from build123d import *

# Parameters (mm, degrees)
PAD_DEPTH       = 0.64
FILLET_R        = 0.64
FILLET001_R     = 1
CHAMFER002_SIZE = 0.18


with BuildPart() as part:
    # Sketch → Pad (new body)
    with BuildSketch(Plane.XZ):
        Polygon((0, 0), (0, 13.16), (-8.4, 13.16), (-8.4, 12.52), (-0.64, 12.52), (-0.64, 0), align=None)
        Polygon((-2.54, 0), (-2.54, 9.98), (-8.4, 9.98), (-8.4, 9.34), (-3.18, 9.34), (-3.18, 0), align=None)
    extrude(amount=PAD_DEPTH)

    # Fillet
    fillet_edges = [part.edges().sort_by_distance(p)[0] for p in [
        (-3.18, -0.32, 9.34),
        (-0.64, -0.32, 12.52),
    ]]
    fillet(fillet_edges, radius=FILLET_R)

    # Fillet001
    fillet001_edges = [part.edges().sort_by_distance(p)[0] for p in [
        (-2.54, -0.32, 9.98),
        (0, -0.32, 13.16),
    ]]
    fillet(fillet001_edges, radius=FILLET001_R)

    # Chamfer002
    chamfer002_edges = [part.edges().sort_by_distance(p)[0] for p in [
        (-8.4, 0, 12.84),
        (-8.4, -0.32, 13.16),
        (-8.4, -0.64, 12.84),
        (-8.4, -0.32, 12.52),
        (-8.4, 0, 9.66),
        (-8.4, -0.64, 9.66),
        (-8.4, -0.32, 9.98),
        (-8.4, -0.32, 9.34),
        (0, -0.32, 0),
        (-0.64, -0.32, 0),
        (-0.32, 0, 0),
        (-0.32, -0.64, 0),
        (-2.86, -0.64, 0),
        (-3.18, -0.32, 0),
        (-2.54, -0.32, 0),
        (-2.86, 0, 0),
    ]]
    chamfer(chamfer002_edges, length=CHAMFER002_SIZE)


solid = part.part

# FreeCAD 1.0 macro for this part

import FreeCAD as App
import Part
import Sketcher
from FreeCAD import Vector
Q = App.Units.Quantity


def edges_at(feature, points):
    """Names of the edges that pass closest to the given points."""
    edges = feature.Shape.Edges
    near = lambda p: min(range(len(edges)), key=lambda i: edges[i].distToShape(Part.Vertex(*p))[0])
    return sorted({f"Edge{near(p) + 1}" for p in points})


def add_polygon(sketch, points):
    """Adds a closed chain of lines whose ends are joined by coincident constraints."""
    first, n = sketch.GeometryCount, len(points)
    for a, b in zip(points, points[1:] + points[:1]):
        sketch.addGeometry(Part.LineSegment(App.Vector(*a, 0), App.Vector(*b, 0)), False)
    for i in range(n):
        sketch.addConstraint(Sketcher.Constraint("Coincident", first + i, 2, first + (i + 1) % n, 1))

doc = App.newDocument("Part")
body = doc.addObject("PartDesign::Body", "Body")
body.AllowCompound = True

sketch1 = body.newObject("Sketcher::SketchObject", "Sketch")
sketch1.AttachmentSupport = (doc.getObject("XZ_Plane"), [""])
sketch1.MapMode = "FlatFace"
add_polygon(sketch1, [(0, 0), (0, 13.2), (-8.4, 13.2), (-8.4, 12.5), (-0.6, 12.5), (-0.6, 0)])
add_polygon(sketch1, [(-2.5, 0), (-2.5, 10), (-8.4, 10), (-8.4, 9.3), (-3.2, 9.3), (-3.2, 0)])
sketch1.addConstraint([
    Sketcher.Constraint("Vertical", 0),
    Sketcher.Constraint("Horizontal", 1),
    Sketcher.Constraint("Vertical", 2),
    Sketcher.Constraint("Horizontal", 3),
    Sketcher.Constraint("Vertical", 4),
    Sketcher.Constraint("Horizontal", 5),
    Sketcher.Constraint("Vertical", 6),
    Sketcher.Constraint("Horizontal", 7),
    Sketcher.Constraint("Vertical", 8),
    Sketcher.Constraint("Horizontal", 9),
    Sketcher.Constraint("Vertical", 10),
    Sketcher.Constraint("Horizontal", 11),
    Sketcher.Constraint("Coincident", 5, 2, -1, 1),
    Sketcher.Constraint("PointOnObject", 10, 2, -1),
    Sketcher.Constraint("Vertical", 2, 2, 7, 2),
    Sketcher.Constraint("Equal", 5, 11),
    Sketcher.Constraint("Equal", 11, 2),
    Sketcher.Constraint("Equal", 2, 8),
    Sketcher.Constraint("DistanceX", 1, 2, 1, 1, Q("8.4 mm")),
    Sketcher.Constraint("DistanceX", 3, 1, 3, 2, Q("7.76 mm")),
    Sketcher.Constraint("DistanceX", 7, 2, 7, 1, Q("5.86 mm")),
    Sketcher.Constraint("DistanceY", 0, 1, 0, 2, Q("13.16 mm")),
    Sketcher.Constraint("DistanceY", 6, 1, 6, 2, Q("9.98 mm")),
])
pad1 = body.newObject("PartDesign::Pad", "Pad")
pad1.Profile = sketch1
pad1.Length = 0.64
doc.recompute()

fillet = body.newObject("PartDesign::Fillet", "Fillet")
fillet.Base = (pad1, edges_at(pad1, [(-3.18, -0.32, 9.34), (-0.64, -0.32, 12.52)]))
fillet.Radius = 0.64
doc.recompute()

fillet2 = body.newObject("PartDesign::Fillet", "Fillet001")
fillet2.Base = (fillet, edges_at(fillet, [(-2.54, -0.32, 9.98), (0, -0.32, 13.16)]))
fillet2.Radius = 1
doc.recompute()

chamfer = body.newObject("PartDesign::Chamfer", "Chamfer")
chamfer.Base = (fillet2, edges_at(fillet2, [
    (-8.4, 0, 12.84),
    (-8.4, -0.32, 13.16),
    (-8.4, -0.64, 12.84),
    (-8.4, -0.32, 12.52),
    (-8.4, 0, 9.66),
    (-8.4, -0.64, 9.66),
    (-8.4, -0.32, 9.98),
    (-8.4, -0.32, 9.34),
    (0, -0.32, 0),
    (-0.64, -0.32, 0),
    (-0.32, 0, 0),
    (-0.32, -0.64, 0),
    (-2.86, -0.64, 0),
    (-3.18, -0.32, 0),
    (-2.54, -0.32, 0),
    (-2.86, 0, 0),
]))
chamfer.Size = 0.18

doc.recompute()
